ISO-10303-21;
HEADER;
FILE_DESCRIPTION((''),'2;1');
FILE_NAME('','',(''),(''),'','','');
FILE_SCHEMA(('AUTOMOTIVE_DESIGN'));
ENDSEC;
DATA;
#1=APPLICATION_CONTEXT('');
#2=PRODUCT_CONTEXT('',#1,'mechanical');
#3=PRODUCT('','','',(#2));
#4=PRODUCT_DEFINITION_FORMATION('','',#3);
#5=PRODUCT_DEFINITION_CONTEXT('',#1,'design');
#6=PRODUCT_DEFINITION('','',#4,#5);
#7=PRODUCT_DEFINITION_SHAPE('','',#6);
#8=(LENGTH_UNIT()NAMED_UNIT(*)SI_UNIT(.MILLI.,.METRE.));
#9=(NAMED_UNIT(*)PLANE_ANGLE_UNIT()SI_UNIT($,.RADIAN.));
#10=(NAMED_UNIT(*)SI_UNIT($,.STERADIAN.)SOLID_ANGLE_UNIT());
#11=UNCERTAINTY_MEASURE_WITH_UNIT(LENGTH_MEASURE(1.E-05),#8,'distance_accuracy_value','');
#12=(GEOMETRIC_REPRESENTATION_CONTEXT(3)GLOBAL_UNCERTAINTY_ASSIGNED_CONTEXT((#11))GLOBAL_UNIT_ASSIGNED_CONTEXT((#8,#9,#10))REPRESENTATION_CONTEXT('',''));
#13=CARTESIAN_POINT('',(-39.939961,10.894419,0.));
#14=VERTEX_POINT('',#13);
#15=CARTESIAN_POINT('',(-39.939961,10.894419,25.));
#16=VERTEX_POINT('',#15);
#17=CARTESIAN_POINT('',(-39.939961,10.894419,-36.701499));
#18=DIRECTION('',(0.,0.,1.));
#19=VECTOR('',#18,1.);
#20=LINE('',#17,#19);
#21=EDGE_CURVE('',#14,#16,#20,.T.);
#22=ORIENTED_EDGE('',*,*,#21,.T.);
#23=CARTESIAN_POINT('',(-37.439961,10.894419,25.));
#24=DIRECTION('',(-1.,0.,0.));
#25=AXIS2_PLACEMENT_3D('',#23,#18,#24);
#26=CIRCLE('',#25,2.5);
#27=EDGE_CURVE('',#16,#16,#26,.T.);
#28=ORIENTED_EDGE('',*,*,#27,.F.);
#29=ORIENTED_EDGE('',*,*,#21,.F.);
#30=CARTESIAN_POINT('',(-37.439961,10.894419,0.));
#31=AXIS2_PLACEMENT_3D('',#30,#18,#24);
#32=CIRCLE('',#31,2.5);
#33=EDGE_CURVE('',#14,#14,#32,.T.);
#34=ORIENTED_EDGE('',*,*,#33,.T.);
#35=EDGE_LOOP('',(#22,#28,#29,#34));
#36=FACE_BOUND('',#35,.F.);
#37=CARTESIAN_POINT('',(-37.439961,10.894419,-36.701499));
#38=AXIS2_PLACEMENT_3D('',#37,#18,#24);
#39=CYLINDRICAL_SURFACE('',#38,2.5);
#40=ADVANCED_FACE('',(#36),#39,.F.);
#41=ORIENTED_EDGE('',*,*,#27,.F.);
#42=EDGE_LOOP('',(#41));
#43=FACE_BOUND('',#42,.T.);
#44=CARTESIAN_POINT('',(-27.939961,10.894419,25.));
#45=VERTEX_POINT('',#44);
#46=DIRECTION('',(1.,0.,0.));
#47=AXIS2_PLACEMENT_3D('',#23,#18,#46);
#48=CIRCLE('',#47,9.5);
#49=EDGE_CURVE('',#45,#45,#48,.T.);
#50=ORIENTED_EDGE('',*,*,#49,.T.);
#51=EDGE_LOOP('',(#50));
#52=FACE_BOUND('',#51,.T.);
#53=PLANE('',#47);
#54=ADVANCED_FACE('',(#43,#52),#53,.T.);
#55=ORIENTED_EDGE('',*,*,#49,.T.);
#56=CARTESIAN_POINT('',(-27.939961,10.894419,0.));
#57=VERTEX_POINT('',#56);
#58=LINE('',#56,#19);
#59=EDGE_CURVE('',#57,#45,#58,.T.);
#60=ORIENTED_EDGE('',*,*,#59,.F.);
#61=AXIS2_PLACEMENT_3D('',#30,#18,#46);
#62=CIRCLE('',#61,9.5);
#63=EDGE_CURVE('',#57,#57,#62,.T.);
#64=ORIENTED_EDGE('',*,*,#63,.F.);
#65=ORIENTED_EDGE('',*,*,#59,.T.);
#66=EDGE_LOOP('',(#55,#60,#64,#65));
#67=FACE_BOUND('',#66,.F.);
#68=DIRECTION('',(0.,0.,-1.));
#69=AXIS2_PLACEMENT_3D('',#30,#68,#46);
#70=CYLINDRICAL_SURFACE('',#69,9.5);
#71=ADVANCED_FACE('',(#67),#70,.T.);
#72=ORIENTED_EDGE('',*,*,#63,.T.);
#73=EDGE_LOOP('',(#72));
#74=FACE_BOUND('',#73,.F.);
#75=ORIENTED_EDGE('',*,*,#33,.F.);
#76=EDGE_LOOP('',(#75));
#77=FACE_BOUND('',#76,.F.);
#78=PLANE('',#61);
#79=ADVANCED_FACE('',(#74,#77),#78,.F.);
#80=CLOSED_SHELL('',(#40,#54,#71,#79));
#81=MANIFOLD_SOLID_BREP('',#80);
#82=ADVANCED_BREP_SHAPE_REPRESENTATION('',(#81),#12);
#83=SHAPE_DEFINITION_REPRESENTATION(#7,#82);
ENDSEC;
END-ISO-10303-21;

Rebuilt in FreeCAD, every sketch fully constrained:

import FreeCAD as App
import Part
import Sketcher
from FreeCAD import Vector

doc = App.newDocument("Part")
body = doc.addObject("PartDesign::Body", "Body")

sketch1 = body.newObject("Sketcher::SketchObject", "Sketch")
sketch1.AttachmentSupport = (doc.getObject("XY_Plane"), [""])
sketch1.MapMode = "FlatFace"
sketch1.addGeometry(Part.Circle(Vector(-37, 11, 0), Vector(0, 0, 1), 10), False)
sketch1.addConstraint(Sketcher.Constraint("Diameter", 0, 19.0))
sketch1.addConstraint(Sketcher.Constraint("DistanceX", 0, 3, -1, 1, 37.439961))
sketch1.addConstraint(Sketcher.Constraint("DistanceY", -1, 1, 0, 3, 10.894419))
pad1 = body.newObject("PartDesign::Pad", "Pad")
pad1.Profile = sketch1
pad1.Length = 25

sketch2 = body.newObject("Sketcher::SketchObject", "Sketch001")
sketch2.AttachmentSupport = (doc.getObject("XY_Plane"), [""])
sketch2.MapMode = "FlatFace"
sketch2.addGeometry(Part.Circle(Vector(-37.4, 10.9, 0), Vector(0, 0, 1), 2.5), False)
sketch2.addConstraint(Sketcher.Constraint("Diameter", 0, 5.0))
sketch2.addConstraint(Sketcher.Constraint("DistanceX", 0, 3, -1, 1, 37.439961))
sketch2.addConstraint(Sketcher.Constraint("DistanceY", -1, 1, 0, 3, 10.894419))
doc.recompute()
hole = body.newObject("PartDesign::Hole", "Hole")
hole.Profile = sketch2
hole.ThreadType = "None"
hole.Diameter = 5
hole.DepthType = "ThroughAll"
hole.Reversed = True

doc.recompute()
